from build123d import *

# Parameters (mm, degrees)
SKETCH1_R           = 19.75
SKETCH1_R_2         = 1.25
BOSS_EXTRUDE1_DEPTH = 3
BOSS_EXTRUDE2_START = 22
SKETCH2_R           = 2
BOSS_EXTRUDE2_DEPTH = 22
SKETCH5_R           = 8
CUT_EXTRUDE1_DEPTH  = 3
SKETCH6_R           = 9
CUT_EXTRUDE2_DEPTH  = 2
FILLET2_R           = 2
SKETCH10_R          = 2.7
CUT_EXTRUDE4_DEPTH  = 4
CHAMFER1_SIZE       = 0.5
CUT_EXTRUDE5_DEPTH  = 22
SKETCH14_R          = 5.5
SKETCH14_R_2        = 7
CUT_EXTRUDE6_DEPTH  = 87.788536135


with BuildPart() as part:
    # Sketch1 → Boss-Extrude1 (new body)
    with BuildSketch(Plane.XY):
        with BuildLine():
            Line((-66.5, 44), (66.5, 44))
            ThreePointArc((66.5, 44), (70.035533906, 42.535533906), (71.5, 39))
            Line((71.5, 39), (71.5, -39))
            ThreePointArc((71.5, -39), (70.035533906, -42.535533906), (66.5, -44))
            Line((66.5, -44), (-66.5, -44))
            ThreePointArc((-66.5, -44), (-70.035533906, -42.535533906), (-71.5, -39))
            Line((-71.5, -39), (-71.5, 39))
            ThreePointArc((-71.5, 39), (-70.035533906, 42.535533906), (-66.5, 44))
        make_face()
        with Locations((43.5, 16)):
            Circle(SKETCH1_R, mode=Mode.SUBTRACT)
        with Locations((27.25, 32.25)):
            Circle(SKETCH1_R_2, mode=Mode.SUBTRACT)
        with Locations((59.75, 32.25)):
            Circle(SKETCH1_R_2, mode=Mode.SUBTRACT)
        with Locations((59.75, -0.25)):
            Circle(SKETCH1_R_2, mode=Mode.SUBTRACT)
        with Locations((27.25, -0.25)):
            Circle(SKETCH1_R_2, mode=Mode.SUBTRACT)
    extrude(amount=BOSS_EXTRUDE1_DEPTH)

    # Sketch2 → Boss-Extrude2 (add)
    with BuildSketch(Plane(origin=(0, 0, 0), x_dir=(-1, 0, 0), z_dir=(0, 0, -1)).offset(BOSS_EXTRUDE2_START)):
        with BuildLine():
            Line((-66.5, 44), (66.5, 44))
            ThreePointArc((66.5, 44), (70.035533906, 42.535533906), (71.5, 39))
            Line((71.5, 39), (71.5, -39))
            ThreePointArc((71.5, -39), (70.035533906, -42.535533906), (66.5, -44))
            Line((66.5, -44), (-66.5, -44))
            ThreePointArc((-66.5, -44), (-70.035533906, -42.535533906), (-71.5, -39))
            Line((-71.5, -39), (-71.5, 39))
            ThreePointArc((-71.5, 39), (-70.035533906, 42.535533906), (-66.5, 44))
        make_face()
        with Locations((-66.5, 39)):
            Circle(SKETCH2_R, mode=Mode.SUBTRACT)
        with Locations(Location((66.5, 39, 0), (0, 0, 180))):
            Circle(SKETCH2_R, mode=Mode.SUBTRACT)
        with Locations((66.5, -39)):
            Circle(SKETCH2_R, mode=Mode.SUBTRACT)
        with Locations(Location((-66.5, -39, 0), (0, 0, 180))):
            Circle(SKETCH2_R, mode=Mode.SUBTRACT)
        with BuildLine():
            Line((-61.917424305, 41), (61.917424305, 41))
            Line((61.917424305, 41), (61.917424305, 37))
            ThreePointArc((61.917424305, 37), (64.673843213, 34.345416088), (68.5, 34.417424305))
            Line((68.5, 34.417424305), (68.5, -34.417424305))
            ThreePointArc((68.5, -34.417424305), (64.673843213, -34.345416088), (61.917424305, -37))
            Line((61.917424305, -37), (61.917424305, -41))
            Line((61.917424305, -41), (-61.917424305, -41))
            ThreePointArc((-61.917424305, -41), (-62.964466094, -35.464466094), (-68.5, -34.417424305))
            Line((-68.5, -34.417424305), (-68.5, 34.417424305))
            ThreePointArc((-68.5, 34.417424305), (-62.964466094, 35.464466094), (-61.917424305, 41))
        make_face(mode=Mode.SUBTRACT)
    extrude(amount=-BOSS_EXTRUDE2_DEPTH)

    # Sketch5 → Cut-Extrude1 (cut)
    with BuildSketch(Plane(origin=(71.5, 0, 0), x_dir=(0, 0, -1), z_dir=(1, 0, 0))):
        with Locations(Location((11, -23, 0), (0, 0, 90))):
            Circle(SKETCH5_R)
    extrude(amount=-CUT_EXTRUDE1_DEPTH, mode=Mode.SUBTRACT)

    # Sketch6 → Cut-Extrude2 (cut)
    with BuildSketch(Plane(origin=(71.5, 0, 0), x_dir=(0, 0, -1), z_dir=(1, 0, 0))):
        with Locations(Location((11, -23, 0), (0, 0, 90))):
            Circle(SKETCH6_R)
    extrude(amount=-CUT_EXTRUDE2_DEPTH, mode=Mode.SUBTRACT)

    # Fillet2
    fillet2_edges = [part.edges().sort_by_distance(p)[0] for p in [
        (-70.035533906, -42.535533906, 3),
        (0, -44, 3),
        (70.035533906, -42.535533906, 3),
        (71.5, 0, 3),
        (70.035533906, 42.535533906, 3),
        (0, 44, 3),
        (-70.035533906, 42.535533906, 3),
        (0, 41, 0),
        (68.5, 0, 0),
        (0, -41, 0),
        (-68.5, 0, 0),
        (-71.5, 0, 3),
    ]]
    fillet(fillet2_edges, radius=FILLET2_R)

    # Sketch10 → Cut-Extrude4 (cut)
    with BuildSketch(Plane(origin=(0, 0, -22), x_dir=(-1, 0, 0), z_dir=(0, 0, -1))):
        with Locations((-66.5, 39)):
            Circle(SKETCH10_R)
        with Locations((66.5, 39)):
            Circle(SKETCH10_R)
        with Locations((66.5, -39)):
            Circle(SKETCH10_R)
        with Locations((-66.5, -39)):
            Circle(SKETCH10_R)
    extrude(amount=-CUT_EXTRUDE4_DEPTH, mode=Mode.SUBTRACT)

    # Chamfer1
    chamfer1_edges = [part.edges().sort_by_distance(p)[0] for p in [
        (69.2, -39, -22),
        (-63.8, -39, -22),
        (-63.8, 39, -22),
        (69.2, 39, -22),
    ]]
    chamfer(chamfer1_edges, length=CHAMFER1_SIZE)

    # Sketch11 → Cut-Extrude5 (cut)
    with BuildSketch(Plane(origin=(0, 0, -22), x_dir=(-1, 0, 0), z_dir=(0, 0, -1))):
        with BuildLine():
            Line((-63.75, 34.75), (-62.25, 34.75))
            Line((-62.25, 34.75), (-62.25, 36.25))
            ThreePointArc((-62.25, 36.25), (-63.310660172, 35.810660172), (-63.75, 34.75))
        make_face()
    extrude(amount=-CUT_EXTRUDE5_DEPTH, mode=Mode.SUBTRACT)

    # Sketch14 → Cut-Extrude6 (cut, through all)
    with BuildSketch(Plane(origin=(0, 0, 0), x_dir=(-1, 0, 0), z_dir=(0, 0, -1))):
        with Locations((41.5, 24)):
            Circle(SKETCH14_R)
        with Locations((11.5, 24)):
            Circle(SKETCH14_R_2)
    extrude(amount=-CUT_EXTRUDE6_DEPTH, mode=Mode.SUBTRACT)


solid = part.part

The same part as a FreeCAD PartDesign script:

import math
import FreeCAD as App
import Part
import Sketcher

V = App.Vector


def edges_at(feature, points):
    """Names of the edges that pass closest to the given points."""
    edges = feature.Shape.Edges
    near = lambda p: min(range(len(edges)), key=lambda i: edges[i].distToShape(Part.Vertex(*p))[0])
    return sorted({f"Edge{near(p) + 1}" for p in points})

doc = App.newDocument("Part")
params = doc.addObject("Spreadsheet::Sheet", "Params")
for row, (alias, value) in enumerate([
    ("sketch1_radius", "5 mm"),
    ("sketch1_diameter", "2.5 mm"),
    ("sketch1_diameter2", "39.5 mm"),
    ("sketch1_width", "133 mm"),
    ("sketch1_height", "78 mm"),
    ("pad1_length", "3 mm"),
    ("sketch2_diameter", "4 mm"),
    ("sketch2_radius", "5 mm"),
    ("sketch2_width", "133 mm"),
    ("sketch2_height", "78 mm"),
    ("sketch2_height2", "4 mm"),
    ("pad2_length", "22 mm"),
    ("sketch3_diameter", "16 mm"),
    ("pocket1_length", "3 mm"),
    ("sketch4_diameter", "18 mm"),
    ("pocket2_length", "2 mm"),
    ("fillet_radius", "2 mm"),
    ("sketch5_diameter", "5.4 mm"),
    ("pocket3_length", "4 mm"),
    ("chamfer_size", "0.5 mm"),
    ("sketch6_radius", "1.5 mm"),
    ("pocket4_length", "22 mm"),
    ("sketch7_diameter", "11 mm"),
    ("sketch7_diameter2", "14 mm"),
], start=1):
    params.set(f"A{row}", alias)
    params.set(f"B{row}", "=" + value)
    params.setAlias(f"B{row}", alias)

body = doc.addObject("PartDesign::Body", "Body")

# Sketch on XY plane
sketch1 = doc.addObject("Sketcher::SketchObject", "Sketch")
body.addObject(sketch1)
sketch1.AttachmentSupport = (doc.XY_Plane, [""])
sketch1.MapMode = "FlatFace"
sketch1.addGeometry(Part.LineSegment(V(66.5, 44, 0), V(-66.5, 44, 0)), False)
sketch1.addGeometry(Part.ArcOfCircle(Part.Circle(V(-66.5, 39, 0), V(0, 0, 1), 5), math.radians(90), math.radians(180)), False)
sketch1.addGeometry(Part.LineSegment(V(-71.5, 39, 0), V(-71.5, -39, 0)), False)
sketch1.addGeometry(Part.ArcOfCircle(Part.Circle(V(-66.5, -39, 0), V(0, 0, 1), 5), math.radians(180), math.radians(270)), False)
sketch1.addGeometry(Part.LineSegment(V(-66.5, -44, 0), V(66.5, -44, 0)), False)
sketch1.addGeometry(Part.ArcOfCircle(Part.Circle(V(66.5, -39, 0), V(0, 0, 1), 5), math.radians(-90), math.radians(0)), False)
sketch1.addGeometry(Part.LineSegment(V(71.5, -39, 0), V(71.5, 39, 0)), False)
sketch1.addGeometry(Part.ArcOfCircle(Part.Circle(V(66.5, 39, 0), V(0, 0, 1), 5), math.radians(0), math.radians(90)), False)
sketch1.addGeometry(Part.Circle(V(59.75, -0.25, 0), V(0, 0, 1), 1.25), False)
sketch1.addGeometry(Part.Circle(V(27.25, -0.25, 0), V(0, 0, 1), 1.25), False)
sketch1.addGeometry(Part.Circle(V(59.75, 32.25, 0), V(0, 0, 1), 1.25), False)
sketch1.addGeometry(Part.Circle(V(43.5, 16, 0), V(0, 0, 1), 19.75), False)
sketch1.addGeometry(Part.Circle(V(27.25, 32.25, 0), V(0, 0, 1), 1.25), False)
sketch1.addConstraint(Sketcher.Constraint("Tangent", 0, 2, 1, 1))
sketch1.addConstraint(Sketcher.Constraint("Tangent", 1, 2, 2, 1))
sketch1.addConstraint(Sketcher.Constraint("Tangent", 2, 2, 3, 1))
sketch1.addConstraint(Sketcher.Constraint("Tangent", 3, 2, 4, 1))
sketch1.addConstraint(Sketcher.Constraint("Tangent", 4, 2, 5, 1))
sketch1.addConstraint(Sketcher.Constraint("Tangent", 5, 2, 6, 1))
sketch1.addConstraint(Sketcher.Constraint("Tangent", 6, 2, 7, 1))
sketch1.addConstraint(Sketcher.Constraint("Tangent", 7, 2, 0, 1))
sketch1.addConstraint(Sketcher.Constraint("Horizontal", 0))
sketch1.addConstraint(Sketcher.Constraint("Vertical", 2))
sketch1.addConstraint(Sketcher.Constraint("Horizontal", 4))
sketch1.addConstraint(Sketcher.Constraint("Vertical", 6))
sketch1.addConstraint(Sketcher.Constraint("Equal", 1, 3))
sketch1.addConstraint(Sketcher.Constraint("Equal", 3, 5))
sketch1.addConstraint(Sketcher.Constraint("Equal", 5, 7))
sketch1.addConstraint(Sketcher.Constraint("Equal", 8, 9))
sketch1.addConstraint(Sketcher.Constraint("Equal", 9, 10))
sketch1.addConstraint(Sketcher.Constraint("Equal", 10, 12))
sketch1.addConstraint(Sketcher.Constraint("Symmetric", 1, 3, 5, 3, -1, 1))
sketch1.addConstraint(Sketcher.Constraint("Horizontal", 8, 3, 9, 3))
sketch1.addConstraint(Sketcher.Constraint("Horizontal", 10, 3, 12, 3))
sketch1.addConstraint(Sketcher.Constraint("Vertical", 8, 3, 10, 3))
sketch1.addConstraint(Sketcher.Constraint("Vertical", 9, 3, 12, 3))
sketch1.addConstraint(Sketcher.Constraint("Radius", 1, 5.0))
sketch1.addConstraint(Sketcher.Constraint("Diameter", 8, 2.5))
sketch1.addConstraint(Sketcher.Constraint("Diameter", 11, 39.5))
sketch1.addConstraint(Sketcher.Constraint("DistanceX", 0, 2, 0, 1, 133.0))
sketch1.addConstraint(Sketcher.Constraint("DistanceY", 2, 2, 2, 1, 78.0))
sketch1.addConstraint(Sketcher.Constraint("DistanceY", -1, 1, 11, 3, 16.0))
sketch1.addConstraint(Sketcher.Constraint("DistanceX", 11, 3, 7, 3, 23.0))
sketch1.addConstraint(Sketcher.Constraint("DistanceX", 9, 3, 8, 3, 32.5))
sketch1.addConstraint(Sketcher.Constraint("DistanceY", 8, 3, 10, 3, 32.5))
sketch1.addConstraint(Sketcher.Constraint("DistanceX", -1, 1, 8, 3, 59.75))
sketch1.addConstraint(Sketcher.Constraint("DistanceY", 8, 3, -1, 1, 0.25))
sketch1.setExpression("Constraints[23]", "Params.sketch1_radius")
sketch1.setExpression("Constraints[24]", "Params.sketch1_diameter")
sketch1.setExpression("Constraints[25]", "Params.sketch1_diameter2")
sketch1.setExpression("Constraints[26]", "Params.sketch1_width")
sketch1.setExpression("Constraints[27]", "Params.sketch1_height")
pad1 = doc.addObject("PartDesign::Pad", "Pad")
body.addObject(pad1)
pad1.Profile = sketch1
pad1.setExpression("Length", "Params.pad1_length")

# Sketch on XY plane
sketch2 = doc.addObject("Sketcher::SketchObject", "Sketch001")
body.addObject(sketch2)
sketch2.AttachmentSupport = (doc.XY_Plane, [""])
sketch2.MapMode = "FlatFace"
sketch2.AttachmentOffset = App.Placement(V(0, 0, -22), App.Rotation())
sketch2.addGeometry(Part.LineSegment(V(-66.5, 44, 0), V(66.5, 44, 0)), False)
sketch2.addGeometry(Part.ArcOfCircle(Part.Circle(V(66.5, 39, 0), V(0, 0, 1), 5), math.radians(0), math.radians(90)), False)
sketch2.addGeometry(Part.LineSegment(V(71.5, 39, 0), V(71.5, -39, 0)), False)
sketch2.addGeometry(Part.ArcOfCircle(Part.Circle(V(66.5, -39, 0), V(0, 0, 1), 5), math.radians(-90), math.radians(0)), False)
sketch2.addGeometry(Part.LineSegment(V(66.5, -44, 0), V(-66.5, -44, 0)), False)
sketch2.addGeometry(Part.ArcOfCircle(Part.Circle(V(-66.5, -39, 0), V(0, 0, 1), 5), math.radians(180), math.radians(270)), False)
sketch2.addGeometry(Part.LineSegment(V(-71.5, -39, 0), V(-71.5, 39, 0)), False)
sketch2.addGeometry(Part.ArcOfCircle(Part.Circle(V(-66.5, 39, 0), V(0, 0, 1), 5), math.radians(90), math.radians(180)), False)
sketch2.addGeometry(Part.Circle(V(-66.5, -39, 0), V(0, 0, 1), 2), False)
sketch2.addGeometry(Part.Circle(V(66.5, -39, 0), V(0, 0, 1), 2), False)
sketch2.addGeometry(Part.Circle(V(-66.5, 39, 0), V(0, 0, 1), 2), False)
sketch2.addGeometry(Part.LineSegment(V(61.917424, 41, 0), V(-61.917424, 41, 0)), False)
sketch2.addGeometry(Part.LineSegment(V(-61.917424, 41, 0), V(-61.917424, 37, 0)), False)
sketch2.addGeometry(Part.ArcOfCircle(Part.Circle(V(-66.5, 39, 0), V(0, 0, 1), 5), math.radians(-113.578178), math.radians(-23.578178)), False)
sketch2.addGeometry(Part.LineSegment(V(-68.5, 34.417424, 0), V(-68.5, -34.417424, 0)), False)
sketch2.addGeometry(Part.ArcOfCircle(Part.Circle(V(-66.5, -39, 0), V(0, 0, 1), 5), math.radians(23.578178), math.radians(113.578178)), False)
sketch2.addGeometry(Part.LineSegment(V(-61.917424, -37, 0), V(-61.917424, -41, 0)), False)
sketch2.addGeometry(Part.LineSegment(V(-61.917424, -41, 0), V(61.917424, -41, 0)), False)
sketch2.addGeometry(Part.ArcOfCircle(Part.Circle(V(66.5, -39, 0), V(0, 0, 1), 5), math.radians(66.421822), math.radians(203.578178)), False)
sketch2.addGeometry(Part.LineSegment(V(68.5, -34.417424, 0), V(68.5, 34.417424, 0)), False)
sketch2.addGeometry(Part.ArcOfCircle(Part.Circle(V(66.5, 39, 0), V(0, 0, 1), 5), math.radians(156.421822), math.radians(293.578178)), False)
sketch2.addGeometry(Part.Circle(V(66.5, 39, 0), V(0, 0, 1), 2), False)
sketch2.addConstraint(Sketcher.Constraint("Tangent", 0, 2, 1, 2))
sketch2.addConstraint(Sketcher.Constraint("Tangent", 1, 1, 2, 1))
sketch2.addConstraint(Sketcher.Constraint("Tangent", 2, 2, 3, 2))
sketch2.addConstraint(Sketcher.Constraint("Tangent", 3, 1, 4, 1))
sketch2.addConstraint(Sketcher.Constraint("Tangent", 4, 2, 5, 2))
sketch2.addConstraint(Sketcher.Constraint("Tangent", 5, 1, 6, 1))
sketch2.addConstraint(Sketcher.Constraint("Tangent", 6, 2, 7, 2))
sketch2.addConstraint(Sketcher.Constraint("Tangent", 7, 1, 0, 1))
sketch2.addConstraint(Sketcher.Constraint("Coincident", 11, 2, 12, 1))
sketch2.addConstraint(Sketcher.Constraint("Coincident", 12, 2, 13, 2))
sketch2.addConstraint(Sketcher.Constraint("Coincident", 13, 1, 14, 1))
sketch2.addConstraint(Sketcher.Constraint("Coincident", 14, 2, 15, 2))
sketch2.addConstraint(Sketcher.Constraint("Coincident", 15, 1, 16, 1))
sketch2.addConstraint(Sketcher.Constraint("Coincident", 16, 2, 17, 1))
sketch2.addConstraint(Sketcher.Constraint("Coincident", 17, 2, 18, 2))
sketch2.addConstraint(Sketcher.Constraint("Coincident", 18, 1, 19, 1))
sketch2.addConstraint(Sketcher.Constraint("Coincident", 19, 2, 20, 2))
sketch2.addConstraint(Sketcher.Constraint("Coincident", 20, 1, 11, 1))
sketch2.addConstraint(Sketcher.Constraint("Horizontal", 0))
sketch2.addConstraint(Sketcher.Constraint("Vertical", 2))
sketch2.addConstraint(Sketcher.Constraint("Horizontal", 4))
sketch2.addConstraint(Sketcher.Constraint("Vertical", 6))
sketch2.addConstraint(Sketcher.Constraint("Horizontal", 11))
sketch2.addConstraint(Sketcher.Constraint("Vertical", 12))
sketch2.addConstraint(Sketcher.Constraint("Vertical", 14))
sketch2.addConstraint(Sketcher.Constraint("Vertical", 16))
sketch2.addConstraint(Sketcher.Constraint("Horizontal", 17))
sketch2.addConstraint(Sketcher.Constraint("Vertical", 19))
sketch2.addConstraint(Sketcher.Constraint("Coincident", 8, 3, 5, 3))
sketch2.addConstraint(Sketcher.Constraint("Coincident", 9, 3, 3, 3))
sketch2.addConstraint(Sketcher.Constraint("Coincident", 10, 3, 7, 3))
sketch2.addConstraint(Sketcher.Constraint("Coincident", 13, 3, 7, 3))
sketch2.addConstraint(Sketcher.Constraint("Coincident", 15, 3, 5, 3))
sketch2.addConstraint(Sketcher.Constraint("Coincident", 18, 3, 3, 3))
sketch2.addConstraint(Sketcher.Constraint("Coincident", 20, 3, 1, 3))
sketch2.addConstraint(Sketcher.Constraint("Coincident", 21, 3, 1, 3))
sketch2.addConstraint(Sketcher.Constraint("Equal", 1, 3))
sketch2.addConstraint(Sketcher.Constraint("Equal", 3, 5))
sketch2.addConstraint(Sketcher.Constraint("Equal", 5, 7))
sketch2.addConstraint(Sketcher.Constraint("Equal", 8, 9))
sketch2.addConstraint(Sketcher.Constraint("Equal", 9, 10))
sketch2.addConstraint(Sketcher.Constraint("Equal", 7, 13))
sketch2.addConstraint(Sketcher.Constraint("Equal", 13, 15))
sketch2.addConstraint(Sketcher.Constraint("Equal", 15, 18))
sketch2.addConstraint(Sketcher.Constraint("Equal", 18, 20))
sketch2.addConstraint(Sketcher.Constraint("Equal", 10, 21))
sketch2.addConstraint(Sketcher.Constraint("Symmetric", 1, 3, 5, 3, -1, 1))
sketch2.addConstraint(Sketcher.Constraint("Symmetric", 11, 2, 17, 2, -1, 1))
sketch2.addConstraint(Sketcher.Constraint("Horizontal", 14, 2, 18, 1))
sketch2.addConstraint(Sketcher.Constraint("Vertical", 12, 2, 15, 1))
sketch2.addConstraint(Sketcher.Constraint("Diameter", 8, 4.0))
sketch2.addConstraint(Sketcher.Constraint("Radius", 1, 5.0))
sketch2.addConstraint(Sketcher.Constraint("DistanceX", 0, 1, 0, 2, 133.0))
sketch2.addConstraint(Sketcher.Constraint("DistanceY", 2, 2, 2, 1, 78.0))
sketch2.addConstraint(Sketcher.Constraint("DistanceY", 12, 2, 12, 1, 4.0))
sketch2.addConstraint(Sketcher.Constraint("DistanceX", 13, 1, 13, 3, 2.0))
sketch2.setExpression("Constraints[50]", "Params.sketch2_diameter")
sketch2.setExpression("Constraints[51]", "Params.sketch2_radius")
sketch2.setExpression("Constraints[52]", "Params.sketch2_width")
sketch2.setExpression("Constraints[53]", "Params.sketch2_height")
sketch2.setExpression("Constraints[54]", "Params.sketch2_height2")
pad2 = doc.addObject("PartDesign::Pad", "Pad001")
body.addObject(pad2)
pad2.Profile = sketch2
pad2.setExpression("Length", "Params.pad2_length")

# Sketch on YZ plane
sketch3 = doc.addObject("Sketcher::SketchObject", "Sketch002")
body.addObject(sketch3)
sketch3.AttachmentSupport = (doc.YZ_Plane, [""])
sketch3.MapMode = "FlatFace"
sketch3.AttachmentOffset = App.Placement(V(0, 0, 71.5), App.Rotation())
sketch3.addGeometry(Part.Circle(V(-23, -11, 0), V(0, 0, 1), 8), False)
sketch3.addConstraint(Sketcher.Constraint("Diameter", 0, 16.0))
sketch3.addConstraint(Sketcher.Constraint("DistanceX", 0, 3, -1, 1, 23.0))
sketch3.addConstraint(Sketcher.Constraint("DistanceY", 0, 3, -1, 1, 11.0))
sketch3.setExpression("Constraints[0]", "Params.sketch3_diameter")
pocket1 = doc.addObject("PartDesign::Pocket", "Pocket")
body.addObject(pocket1)
pocket1.Profile = sketch3
pocket1.setExpression("Length", "Params.pocket1_length")

# Sketch on YZ plane
sketch4 = doc.addObject("Sketcher::SketchObject", "Sketch003")
body.addObject(sketch4)
sketch4.AttachmentSupport = (doc.YZ_Plane, [""])
sketch4.MapMode = "FlatFace"
sketch4.AttachmentOffset = App.Placement(V(0, 0, 71.5), App.Rotation())
sketch4.addGeometry(Part.Circle(V(-23, -11, 0), V(0, 0, 1), 9), False)
sketch4.addConstraint(Sketcher.Constraint("Diameter", 0, 18.0))
sketch4.addConstraint(Sketcher.Constraint("DistanceX", 0, 3, -1, 1, 23.0))
sketch4.addConstraint(Sketcher.Constraint("DistanceY", 0, 3, -1, 1, 11.0))
sketch4.setExpression("Constraints[0]", "Params.sketch4_diameter")
pocket2 = doc.addObject("PartDesign::Pocket", "Pocket001")
body.addObject(pocket2)
pocket2.Profile = sketch4
pocket2.setExpression("Length", "Params.pocket2_length")
doc.recompute()

fillet = doc.addObject("PartDesign::Fillet", "Fillet")
body.addObject(fillet)
fillet.Base = (pocket2, edges_at(pocket2, [
    (-70.036, -42.536, 3),
    (0, -44, 3),
    (70.036, -42.536, 3),
    (71.5, 0, 3),
    (70.036, 42.536, 3),
    (0, 44, 3),
    (-70.036, 42.536, 3),
    (0, 41, 0),
    (68.5, 0, 0),
    (0, -41, 0),
    (-68.5, 0, 0),
    (-71.5, 0, 3),
]))
fillet.setExpression("Radius", "Params.fillet_radius")

# Sketch on XY plane
sketch5 = doc.addObject("Sketcher::SketchObject", "Sketch004")
body.addObject(sketch5)
sketch5.AttachmentSupport = (doc.XY_Plane, [""])
sketch5.MapMode = "FlatFace"
sketch5.AttachmentOffset = App.Placement(V(0, 0, -22), App.Rotation())
sketch5.addGeometry(Part.Circle(V(66.5, 39, 0), V(0, 0, 1), 2.7), False)
sketch5.addGeometry(Part.Circle(V(-66.5, 39, 0), V(0, 0, 1), 2.7), False)
sketch5.addGeometry(Part.Circle(V(-66.5, -39, 0), V(0, 0, 1), 2.7), False)
sketch5.addGeometry(Part.Circle(V(66.5, -39, 0), V(0, 0, 1), 2.7), False)
sketch5.addConstraint(Sketcher.Constraint("Equal", 0, 1))
sketch5.addConstraint(Sketcher.Constraint("Equal", 1, 2))
sketch5.addConstraint(Sketcher.Constraint("Equal", 2, 3))
sketch5.addConstraint(Sketcher.Constraint("Symmetric", 0, 3, 2, 3, -1, 1))
sketch5.addConstraint(Sketcher.Constraint("Symmetric", 1, 3, 3, 3, -1, 1))
sketch5.addConstraint(Sketcher.Constraint("Symmetric", 0, 3, 1, 3, -2))
sketch5.addConstraint(Sketcher.Constraint("Diameter", 0, 5.4))
sketch5.addConstraint(Sketcher.Constraint("DistanceY", -1, 1, 0, 3, 39.0))
sketch5.addConstraint(Sketcher.Constraint("DistanceX", 1, 3, 0, 3, 133.0))
sketch5.setExpression("Constraints[6]", "Params.sketch5_diameter")
pocket3 = doc.addObject("PartDesign::Pocket", "Pocket002")
body.addObject(pocket3)
pocket3.Profile = sketch5
pocket3.setExpression("Length", "Params.pocket3_length")
pocket3.Reversed = True
doc.recompute()

chamfer = doc.addObject("PartDesign::Chamfer", "Chamfer")
body.addObject(chamfer)
chamfer.Base = (pocket3, edges_at(pocket3, [
    (69.2, -39, -22),
    (-63.8, -39, -22),
    (-63.8, 39, -22),
    (69.2, 39, -22),
]))
chamfer.setExpression("Size", "Params.chamfer_size")

# Sketch on XY plane
sketch6 = doc.addObject("Sketcher::SketchObject", "Sketch005")
body.addObject(sketch6)
sketch6.AttachmentSupport = (doc.XY_Plane, [""])
sketch6.MapMode = "FlatFace"
sketch6.AttachmentOffset = App.Placement(V(0, 0, -22), App.Rotation())
sketch6.addGeometry(Part.LineSegment(V(63.75, 34.75, 0), V(62.25, 34.75, 0)), False)
sketch6.addGeometry(Part.LineSegment(V(62.25, 34.75, 0), V(62.25, 36.25, 0)), False)
sketch6.addGeometry(Part.ArcOfCircle(Part.Circle(V(62.25, 34.75, 0), V(0, 0, 1), 1.5), math.radians(0), math.radians(90)), False)
sketch6.addConstraint(Sketcher.Constraint("Coincident", 0, 2, 1, 1))
sketch6.addConstraint(Sketcher.Constraint("Coincident", 1, 2, 2, 2))
sketch6.addConstraint(Sketcher.Constraint("Coincident", 2, 1, 0, 1))
sketch6.addConstraint(Sketcher.Constraint("Horizontal", 0))
sketch6.addConstraint(Sketcher.Constraint("Vertical", 1))
sketch6.addConstraint(Sketcher.Constraint("Coincident", 0, 2, 2, 3))
sketch6.addConstraint(Sketcher.Constraint("Radius", 2, 1.5))
sketch6.addConstraint(Sketcher.Constraint("DistanceX", -1, 1, 2, 3, 62.25))
sketch6.addConstraint(Sketcher.Constraint("DistanceY", -1, 1, 2, 3, 34.75))
sketch6.setExpression("Constraints[6]", "Params.sketch6_radius")
pocket4 = doc.addObject("PartDesign::Pocket", "Pocket003")
body.addObject(pocket4)
pocket4.Profile = sketch6
pocket4.setExpression("Length", "Params.pocket4_length")
pocket4.Reversed = True

# Sketch on XY plane
sketch7 = doc.addObject("Sketcher::SketchObject", "Sketch006")
body.addObject(sketch7)
sketch7.AttachmentSupport = (doc.XY_Plane, [""])
sketch7.MapMode = "FlatFace"
sketch7.addGeometry(Part.Circle(V(-41.5, 24, 0), V(0, 0, 1), 5.5), False)
sketch7.addGeometry(Part.Circle(V(-11.5, 24, 0), V(0, 0, 1), 7), False)
sketch7.addConstraint(Sketcher.Constraint("Horizontal", 0, 3, 1, 3))
sketch7.addConstraint(Sketcher.Constraint("Diameter", 0, 11.0))
sketch7.addConstraint(Sketcher.Constraint("Diameter", 1, 14.0))
sketch7.addConstraint(Sketcher.Constraint("DistanceY", -1, 1, 0, 3, 24.0))
sketch7.addConstraint(Sketcher.Constraint("DistanceX", 0, 3, 1, 3, 30.0))
sketch7.addConstraint(Sketcher.Constraint("DistanceX", 0, 3, -1, 1, 41.5))
sketch7.setExpression("Constraints[1]", "Params.sketch7_diameter")
sketch7.setExpression("Constraints[2]", "Params.sketch7_diameter2")
pocket5 = doc.addObject("PartDesign::Pocket", "Pocket004")
body.addObject(pocket5)
pocket5.Profile = sketch7
pocket5.Type = "ThroughAll"
pocket5.Reversed = True

doc.recompute()
